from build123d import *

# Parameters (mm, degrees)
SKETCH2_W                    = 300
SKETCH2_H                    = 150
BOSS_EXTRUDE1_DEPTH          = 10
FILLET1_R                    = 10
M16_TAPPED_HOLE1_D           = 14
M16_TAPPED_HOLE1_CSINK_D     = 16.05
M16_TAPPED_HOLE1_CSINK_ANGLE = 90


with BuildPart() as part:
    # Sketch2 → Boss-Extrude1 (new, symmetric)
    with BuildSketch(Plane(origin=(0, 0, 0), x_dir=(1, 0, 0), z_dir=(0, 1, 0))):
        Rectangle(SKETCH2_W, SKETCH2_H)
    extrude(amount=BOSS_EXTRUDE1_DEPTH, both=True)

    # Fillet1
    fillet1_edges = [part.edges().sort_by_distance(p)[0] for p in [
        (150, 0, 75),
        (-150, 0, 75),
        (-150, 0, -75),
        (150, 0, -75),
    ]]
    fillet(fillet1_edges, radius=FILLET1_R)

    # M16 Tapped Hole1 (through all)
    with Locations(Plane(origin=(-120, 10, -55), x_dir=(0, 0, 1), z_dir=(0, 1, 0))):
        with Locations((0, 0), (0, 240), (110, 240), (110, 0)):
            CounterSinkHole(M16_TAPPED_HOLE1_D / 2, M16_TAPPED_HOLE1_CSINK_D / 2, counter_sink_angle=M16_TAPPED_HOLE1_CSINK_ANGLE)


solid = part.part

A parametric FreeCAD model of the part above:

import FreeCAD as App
import Part
import Sketcher


def edges_at(feature, points):
    """Names of the edges that pass closest to the given points."""
    edges = feature.Shape.Edges
    near = lambda p: min(range(len(edges)), key=lambda i: edges[i].distToShape(Part.Vertex(*p))[0])
    return sorted({f"Edge{near(p) + 1}" for p in points})


def add_polygon(sketch, points):
    """Adds a closed chain of lines whose ends are joined by coincident constraints."""
    first, n = sketch.GeometryCount, len(points)
    for a, b in zip(points, points[1:] + points[:1]):
        sketch.addGeometry(Part.LineSegment(App.Vector(*a, 0), App.Vector(*b, 0)), False)
    for i in range(n):
        sketch.addConstraint(Sketcher.Constraint("Coincident", first + i, 2, first + (i + 1) % n, 1))

doc = App.newDocument("Part")
body = doc.addObject("PartDesign::Body", "Body")

sketch1 = doc.addObject("Sketcher::SketchObject", "Sketch")
body.addObject(sketch1)
sketch1.AttachmentSupport = (doc.XZ_Plane, [""])
sketch1.MapMode = "FlatFace"
add_polygon(sketch1, [(-150, -75), (-150, 75), (150, 75), (150, -75)])
sketch1.addConstraint([
    Sketcher.Constraint("Vertical", 0),
    Sketcher.Constraint("Horizontal", 1),
    Sketcher.Constraint("Vertical", 2),
    Sketcher.Constraint("Horizontal", 3),
    Sketcher.Constraint("Symmetric", 0, 2, 2, 2, -1, 1),
    Sketcher.Constraint("DistanceX", 1, 1, 1, 2, 300.0),
    Sketcher.Constraint("DistanceY", 0, 1, 0, 2, 150.0),
])
pad1 = doc.addObject("PartDesign::Pad", "Pad")
body.addObject(pad1)
pad1.Profile = sketch1
pad1.Length = 20
pad1.Midplane = True
doc.recompute()

fillet = doc.addObject("PartDesign::Fillet", "Fillet")
body.addObject(fillet)
fillet.Base = (pad1, edges_at(pad1, [
    (150, 0, 75),
    (-150, 0, 75),
    (-150, 0, -75),
    (150, 0, -75),
]))
fillet.Radius = 10

sketch2 = doc.addObject("Sketcher::SketchObject", "Sketch001")
body.addObject(sketch2)
sketch2.AttachmentSupport = (doc.XZ_Plane, [""])
sketch2.MapMode = "FlatFace"
sketch2.AttachmentOffset = App.Placement(App.Vector(0, 0, -10), App.Rotation())
sketch2.addGeometry([
    Part.Circle(App.Vector(-120, -55, 0), App.Vector(0, 0, 1), 7),
    Part.Circle(App.Vector(120, -55, 0), App.Vector(0, 0, 1), 7),
    Part.Circle(App.Vector(120, 55, 0), App.Vector(0, 0, 1), 7),
    Part.Circle(App.Vector(-120, 55, 0), App.Vector(0, 0, 1), 7),
], False)
sketch2.addConstraint([
    Sketcher.Constraint("Equal", 0, 1),
    Sketcher.Constraint("Equal", 1, 2),
    Sketcher.Constraint("Equal", 2, 3),
    Sketcher.Constraint("Symmetric", 0, 3, 2, 3, -1, 1),
    Sketcher.Constraint("Symmetric", 1, 3, 3, 3, -1, 1),
    Sketcher.Constraint("Symmetric", 0, 3, 1, 3, -2),
    Sketcher.Constraint("Diameter", 0, 14.0),
    Sketcher.Constraint("DistanceX", 0, 3, -1, 1, 120.0),
    Sketcher.Constraint("DistanceY", 0, 3, -1, 1, 55.0),
])
doc.recompute()
hole = doc.addObject("PartDesign::Hole", "Hole")
body.addObject(hole)
hole.Profile = sketch2
hole.ThreadType = "None"
hole.Diameter = 14
hole.DepthType = "ThroughAll"
hole.HoleCutType = "Countersink"
hole.HoleCutDiameter = 16.05
hole.HoleCutCountersinkAngle = 90
hole.Reversed = True

doc.recompute()
